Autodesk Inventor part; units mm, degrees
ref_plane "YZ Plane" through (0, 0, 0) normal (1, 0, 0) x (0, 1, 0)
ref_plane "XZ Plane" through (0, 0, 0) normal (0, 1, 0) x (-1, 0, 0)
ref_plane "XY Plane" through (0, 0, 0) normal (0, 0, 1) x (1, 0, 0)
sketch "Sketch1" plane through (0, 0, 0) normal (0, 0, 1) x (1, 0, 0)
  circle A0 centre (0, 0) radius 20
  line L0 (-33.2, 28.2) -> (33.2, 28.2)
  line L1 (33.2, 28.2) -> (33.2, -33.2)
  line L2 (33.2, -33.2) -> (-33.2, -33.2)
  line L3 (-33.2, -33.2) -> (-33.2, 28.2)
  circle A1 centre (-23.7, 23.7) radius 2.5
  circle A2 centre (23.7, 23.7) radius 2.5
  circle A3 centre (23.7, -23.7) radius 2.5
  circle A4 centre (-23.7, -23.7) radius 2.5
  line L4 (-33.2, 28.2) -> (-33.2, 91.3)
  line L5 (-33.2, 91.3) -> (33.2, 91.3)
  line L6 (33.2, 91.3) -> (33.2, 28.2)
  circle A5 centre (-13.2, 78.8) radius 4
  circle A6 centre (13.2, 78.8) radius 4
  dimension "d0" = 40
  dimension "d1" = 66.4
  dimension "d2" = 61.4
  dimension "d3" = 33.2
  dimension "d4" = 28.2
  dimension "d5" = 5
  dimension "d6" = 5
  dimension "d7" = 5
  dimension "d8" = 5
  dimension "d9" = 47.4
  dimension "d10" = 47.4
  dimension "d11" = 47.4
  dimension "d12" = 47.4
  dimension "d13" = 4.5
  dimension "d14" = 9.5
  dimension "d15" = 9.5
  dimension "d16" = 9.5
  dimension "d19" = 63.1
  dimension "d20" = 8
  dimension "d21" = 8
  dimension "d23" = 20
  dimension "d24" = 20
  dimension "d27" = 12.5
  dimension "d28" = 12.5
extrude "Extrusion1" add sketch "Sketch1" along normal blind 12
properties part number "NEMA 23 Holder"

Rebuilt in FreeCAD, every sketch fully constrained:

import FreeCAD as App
import Part
import Sketcher


def add_polygon(sketch, points):
    """Adds a closed chain of lines whose ends are joined by coincident constraints."""
    first, n = sketch.GeometryCount, len(points)
    for a, b in zip(points, points[1:] + points[:1]):
        sketch.addGeometry(Part.LineSegment(App.Vector(*a, 0), App.Vector(*b, 0)), False)
    for i in range(n):
        sketch.addConstraint(Sketcher.Constraint("Coincident", first + i, 2, first + (i + 1) % n, 1))

doc = App.newDocument("Part")
body = doc.addObject("PartDesign::Body", "Body")

# Sketch on XY plane
sketch1 = body.newObject("Sketcher::SketchObject", "Sketch")
sketch1.AttachmentSupport = (doc.getObject("XY_Plane"), [""])
sketch1.MapMode = "FlatFace"
add_polygon(sketch1, [(-33.2, 91.3), (-33.2, -33.2), (33.2, -33.2), (33.2, 91.3)])  # lines 0-3
sketch1.addGeometry(Part.Circle(App.Vector(-13.2, 78.8, 0), App.Vector(0, 0, 1), 4), False)  # 4
sketch1.addGeometry(Part.Circle(App.Vector(13.2, 78.8, 0), App.Vector(0, 0, 1), 4), False)  # 5
sketch1.addGeometry(Part.Circle(App.Vector(23.7, 23.7, 0), App.Vector(0, 0, 1), 2.5), False)  # 6
sketch1.addGeometry(Part.Circle(App.Vector(-23.7, -23.7, 0), App.Vector(0, 0, 1), 2.5), False)  # 7
sketch1.addGeometry(Part.Circle(App.Vector(-23.7, 23.7, 0), App.Vector(0, 0, 1), 2.5), False)  # 8
sketch1.addGeometry(Part.Circle(App.Vector(23.7, -23.7, 0), App.Vector(0, 0, 1), 2.5), False)  # 9
sketch1.addGeometry(Part.Circle(App.Vector(0, 0, 0), App.Vector(0, 0, 1), 20), False)  # 10
sketch1.addConstraint([
    Sketcher.Constraint("Vertical", 0),
    Sketcher.Constraint("Horizontal", 1),
    Sketcher.Constraint("Vertical", 2),
    Sketcher.Constraint("Horizontal", 3),
    Sketcher.Constraint("Coincident", 10, 3, -1, 1),
    Sketcher.Constraint("Equal", 4, 5),
    Sketcher.Constraint("Equal", 6, 7),
    Sketcher.Constraint("Equal", 7, 8),
    Sketcher.Constraint("Equal", 8, 9),
    Sketcher.Constraint("Symmetric", 6, 3, 7, 3, -1, 1),
    Sketcher.Constraint("Symmetric", 8, 3, 9, 3, -1, 1),
    Sketcher.Constraint("Symmetric", 4, 3, 5, 3, -2),
    Sketcher.Constraint("Symmetric", 6, 3, 8, 3, -2),
    Sketcher.Constraint("Diameter", 4, 8.0),
    Sketcher.Constraint("Diameter", 6, 5.0),
    Sketcher.Constraint("Diameter", 10, 40.0),
    Sketcher.Constraint("DistanceX", 1, 1, 1, 2, 66.4),
    Sketcher.Constraint("DistanceX", 5, 3, 2, 2, 20.0),
    Sketcher.Constraint("DistanceX", 3, 2, 4, 3, 20.0),
    Sketcher.Constraint("DistanceY", 0, 2, -1, 1, 33.2),
    Sketcher.Constraint("DistanceX", 7, 3, 6, 3, 47.4),
    Sketcher.Constraint("DistanceY", 7, 3, 6, 3, 47.4),
    Sketcher.Constraint("DistanceY", 5, 3, 2, 2, 12.5),
    Sketcher.Constraint("DistanceY", 0, 2, 0, 1, 124.5),
])
pad1 = body.newObject("PartDesign::Pad", "Pad")
pad1.Profile = sketch1
pad1.Length = 12

doc.recompute()
